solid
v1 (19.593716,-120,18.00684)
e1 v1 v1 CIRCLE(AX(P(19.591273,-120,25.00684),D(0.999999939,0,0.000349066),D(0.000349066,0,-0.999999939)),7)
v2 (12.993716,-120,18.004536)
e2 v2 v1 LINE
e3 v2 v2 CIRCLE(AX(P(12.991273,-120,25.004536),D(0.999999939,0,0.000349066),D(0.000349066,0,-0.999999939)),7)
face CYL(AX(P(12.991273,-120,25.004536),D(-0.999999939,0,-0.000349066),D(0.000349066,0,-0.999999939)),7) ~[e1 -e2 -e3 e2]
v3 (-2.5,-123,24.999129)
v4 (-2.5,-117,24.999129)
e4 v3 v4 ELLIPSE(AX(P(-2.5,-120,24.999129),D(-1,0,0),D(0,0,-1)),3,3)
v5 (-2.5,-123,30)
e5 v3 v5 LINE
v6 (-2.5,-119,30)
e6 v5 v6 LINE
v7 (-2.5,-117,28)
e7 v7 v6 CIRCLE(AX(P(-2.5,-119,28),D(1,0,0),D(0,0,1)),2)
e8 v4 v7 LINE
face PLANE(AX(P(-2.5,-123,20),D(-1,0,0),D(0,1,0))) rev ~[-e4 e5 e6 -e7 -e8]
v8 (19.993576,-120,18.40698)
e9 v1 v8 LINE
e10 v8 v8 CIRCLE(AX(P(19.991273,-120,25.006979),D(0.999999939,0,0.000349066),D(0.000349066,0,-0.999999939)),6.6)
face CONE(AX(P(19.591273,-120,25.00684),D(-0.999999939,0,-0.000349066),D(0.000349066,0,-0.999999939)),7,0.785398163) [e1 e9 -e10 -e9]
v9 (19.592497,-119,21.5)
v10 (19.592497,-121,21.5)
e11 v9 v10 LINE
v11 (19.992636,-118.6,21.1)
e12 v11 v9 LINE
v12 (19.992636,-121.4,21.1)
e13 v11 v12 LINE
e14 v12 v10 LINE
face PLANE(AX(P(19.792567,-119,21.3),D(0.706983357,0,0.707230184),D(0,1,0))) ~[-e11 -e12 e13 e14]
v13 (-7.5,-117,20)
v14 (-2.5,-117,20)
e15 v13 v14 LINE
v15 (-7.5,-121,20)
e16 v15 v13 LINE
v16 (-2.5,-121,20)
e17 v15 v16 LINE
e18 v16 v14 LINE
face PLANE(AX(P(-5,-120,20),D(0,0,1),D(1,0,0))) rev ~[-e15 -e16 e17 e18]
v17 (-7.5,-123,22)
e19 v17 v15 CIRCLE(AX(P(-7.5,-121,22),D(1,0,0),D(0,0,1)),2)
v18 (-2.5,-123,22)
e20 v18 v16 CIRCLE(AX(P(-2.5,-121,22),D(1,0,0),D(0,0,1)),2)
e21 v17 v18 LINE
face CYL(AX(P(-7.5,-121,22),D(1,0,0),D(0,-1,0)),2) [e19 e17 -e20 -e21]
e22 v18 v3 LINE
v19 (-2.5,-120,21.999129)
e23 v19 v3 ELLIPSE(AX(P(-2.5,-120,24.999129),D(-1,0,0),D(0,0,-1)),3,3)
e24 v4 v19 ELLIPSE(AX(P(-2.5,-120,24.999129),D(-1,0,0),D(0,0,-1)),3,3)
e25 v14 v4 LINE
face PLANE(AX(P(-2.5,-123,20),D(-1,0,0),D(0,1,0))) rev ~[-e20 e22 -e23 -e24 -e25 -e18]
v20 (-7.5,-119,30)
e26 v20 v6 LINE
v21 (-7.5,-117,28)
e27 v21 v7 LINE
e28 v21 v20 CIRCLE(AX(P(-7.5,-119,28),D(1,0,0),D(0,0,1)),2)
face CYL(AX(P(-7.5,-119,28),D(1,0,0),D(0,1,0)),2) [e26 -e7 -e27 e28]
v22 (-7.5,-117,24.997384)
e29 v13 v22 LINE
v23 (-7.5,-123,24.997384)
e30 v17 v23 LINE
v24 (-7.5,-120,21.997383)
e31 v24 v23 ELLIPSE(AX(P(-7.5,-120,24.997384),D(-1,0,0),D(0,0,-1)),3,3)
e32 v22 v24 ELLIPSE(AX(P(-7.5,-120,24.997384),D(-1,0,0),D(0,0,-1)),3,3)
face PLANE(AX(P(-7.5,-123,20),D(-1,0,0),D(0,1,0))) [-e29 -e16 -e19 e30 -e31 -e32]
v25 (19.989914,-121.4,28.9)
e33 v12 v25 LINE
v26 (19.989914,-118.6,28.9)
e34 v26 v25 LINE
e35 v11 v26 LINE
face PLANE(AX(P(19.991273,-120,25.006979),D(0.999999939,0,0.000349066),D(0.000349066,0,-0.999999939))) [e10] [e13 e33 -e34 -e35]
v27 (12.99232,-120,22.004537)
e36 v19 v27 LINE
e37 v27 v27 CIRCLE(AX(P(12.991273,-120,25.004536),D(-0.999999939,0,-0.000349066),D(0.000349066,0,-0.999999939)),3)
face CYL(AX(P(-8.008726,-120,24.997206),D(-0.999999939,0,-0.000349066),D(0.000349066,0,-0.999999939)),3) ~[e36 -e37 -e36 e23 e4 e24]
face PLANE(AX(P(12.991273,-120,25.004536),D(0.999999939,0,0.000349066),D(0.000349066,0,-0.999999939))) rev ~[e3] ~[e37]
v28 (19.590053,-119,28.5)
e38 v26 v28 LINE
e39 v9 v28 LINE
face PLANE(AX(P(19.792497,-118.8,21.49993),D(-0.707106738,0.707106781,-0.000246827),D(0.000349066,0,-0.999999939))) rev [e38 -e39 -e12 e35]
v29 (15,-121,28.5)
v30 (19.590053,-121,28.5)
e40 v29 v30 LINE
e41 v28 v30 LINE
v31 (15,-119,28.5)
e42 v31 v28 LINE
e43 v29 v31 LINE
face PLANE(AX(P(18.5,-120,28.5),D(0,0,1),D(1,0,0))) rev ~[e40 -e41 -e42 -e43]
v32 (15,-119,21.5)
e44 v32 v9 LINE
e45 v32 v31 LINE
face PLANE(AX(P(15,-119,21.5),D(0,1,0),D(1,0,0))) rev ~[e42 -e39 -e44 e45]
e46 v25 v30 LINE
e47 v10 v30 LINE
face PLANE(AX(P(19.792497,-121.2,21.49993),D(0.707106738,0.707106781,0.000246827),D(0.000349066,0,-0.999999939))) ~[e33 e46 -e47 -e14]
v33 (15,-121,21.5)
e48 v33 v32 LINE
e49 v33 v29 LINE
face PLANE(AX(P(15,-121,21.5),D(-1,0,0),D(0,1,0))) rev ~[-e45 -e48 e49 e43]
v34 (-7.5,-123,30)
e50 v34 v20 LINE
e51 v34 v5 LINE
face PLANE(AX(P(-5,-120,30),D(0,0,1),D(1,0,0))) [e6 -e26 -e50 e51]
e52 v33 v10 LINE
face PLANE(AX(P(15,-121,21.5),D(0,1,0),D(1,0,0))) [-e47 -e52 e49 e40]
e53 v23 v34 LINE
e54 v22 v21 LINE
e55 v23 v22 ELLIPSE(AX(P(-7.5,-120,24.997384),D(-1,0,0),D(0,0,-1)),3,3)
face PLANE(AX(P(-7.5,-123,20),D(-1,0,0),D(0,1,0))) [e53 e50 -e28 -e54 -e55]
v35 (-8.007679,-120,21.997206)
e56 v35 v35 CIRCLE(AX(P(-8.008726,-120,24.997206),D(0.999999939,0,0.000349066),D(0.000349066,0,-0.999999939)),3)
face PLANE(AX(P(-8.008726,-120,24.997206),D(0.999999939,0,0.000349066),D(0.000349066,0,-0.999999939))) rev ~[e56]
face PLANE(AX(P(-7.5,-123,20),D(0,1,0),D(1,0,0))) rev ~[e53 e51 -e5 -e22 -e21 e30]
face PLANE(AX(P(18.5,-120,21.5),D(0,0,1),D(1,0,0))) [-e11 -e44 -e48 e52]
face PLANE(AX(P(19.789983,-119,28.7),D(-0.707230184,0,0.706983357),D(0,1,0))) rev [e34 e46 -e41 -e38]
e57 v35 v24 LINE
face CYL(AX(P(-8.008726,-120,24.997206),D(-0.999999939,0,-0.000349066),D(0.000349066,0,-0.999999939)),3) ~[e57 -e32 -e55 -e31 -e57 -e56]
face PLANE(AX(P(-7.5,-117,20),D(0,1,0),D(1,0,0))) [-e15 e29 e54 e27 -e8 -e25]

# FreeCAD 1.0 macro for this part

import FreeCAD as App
import Part
import Sketcher

V = App.Vector
Q = App.Units.Quantity


def edges_at(feature, points):
    """Names of the edges that pass closest to the given points."""
    edges = feature.Shape.Edges
    near = lambda p: min(range(len(edges)), key=lambda i: edges[i].distToShape(Part.Vertex(*p))[0])
    return sorted({f"Edge{near(p) + 1}" for p in points})


def add_polygon(sketch, points):
    """Adds a closed chain of lines whose ends are joined by coincident constraints."""
    first, n = sketch.GeometryCount, len(points)
    for a, b in zip(points, points[1:] + points[:1]):
        sketch.addGeometry(Part.LineSegment(App.Vector(*a, 0), App.Vector(*b, 0)), False)
    for i in range(n):
        sketch.addConstraint(Sketcher.Constraint("Coincident", first + i, 2, first + (i + 1) % n, 1))

doc = App.newDocument("Part")
params = doc.addObject("Spreadsheet::Sheet", "Params")
for row, (alias, value) in enumerate([
    ("sketch1_width", "7 mm"),
    ("sketch1_height", "2 mm"),
    ("pad1_length", "7 mm"),
    ("sketch2_width", "5 mm"),
    ("sketch2_height", "6 mm"),
    ("pad2_length", "10 mm"),
    ("fillet_radius", "2 mm"),
    ("sketch3_diameter", "6 mm"),
    ("pad3_length", "27 mm"),
    ("sketch4_diameter", "14 mm"),
    ("pad4_length", "7 mm"),
    ("chamfer_size", "0.4 mm"),
], start=1):
    params.set(f"A{row}", alias)
    params.set(f"B{row}", "=" + value)
    params.setAlias(f"B{row}", alias)

body = doc.addObject("PartDesign::Body", "Body")

sketch1 = body.newObject("Sketcher::SketchObject", "Sketch")
sketch1.AttachmentSupport = (doc.getObject("XY_Plane"), [""])
sketch1.MapMode = "FlatFace"
sketch1.AttachmentOffset = App.Placement(V(0, 0, 21.5), App.Rotation())
add_polygon(sketch1, [(15, -119), (15, -121), (22, -121), (22, -119)])
sketch1.addConstraint(Sketcher.Constraint("Vertical", 0))
sketch1.addConstraint(Sketcher.Constraint("Horizontal", 1))
sketch1.addConstraint(Sketcher.Constraint("Vertical", 2))
sketch1.addConstraint(Sketcher.Constraint("Horizontal", 3))
sketch1.addConstraint(Sketcher.Constraint("DistanceX", 1, 1, 1, 2, Q("7 mm")))
sketch1.addConstraint(Sketcher.Constraint("DistanceY", 0, 2, 0, 1, Q("2 mm")))
sketch1.addConstraint(Sketcher.Constraint("DistanceX", -1, 1, 0, 2, Q("15 mm")))
sketch1.addConstraint(Sketcher.Constraint("DistanceY", 0, 2, -1, 1, Q("121 mm")))
sketch1.setExpression("Constraints[8]", "Params.sketch1_width")
sketch1.setExpression("Constraints[9]", "Params.sketch1_height")
pad1 = body.newObject("PartDesign::Pad", "Pad")
pad1.Profile = sketch1
pad1.setExpression("Length", "Params.pad1_length")
body2 = doc.addObject("PartDesign::Body", "Body001")

sketch2 = body2.newObject("Sketcher::SketchObject", "Sketch001")
sketch2.AttachmentSupport = (doc.getObject("XY_Plane001"), [""])
sketch2.MapMode = "FlatFace"
sketch2.AttachmentOffset = App.Placement(V(0, 0, 20), App.Rotation())
add_polygon(sketch2, [(-7.5, -117), (-7.5, -123), (-2.5, -123), (-2.5, -117)])
sketch2.addConstraint(Sketcher.Constraint("Vertical", 0))
sketch2.addConstraint(Sketcher.Constraint("Horizontal", 1))
sketch2.addConstraint(Sketcher.Constraint("Vertical", 2))
sketch2.addConstraint(Sketcher.Constraint("Horizontal", 3))
sketch2.addConstraint(Sketcher.Constraint("DistanceX", 1, 1, 1, 2, Q("5 mm")))
sketch2.addConstraint(Sketcher.Constraint("DistanceY", 0, 2, 0, 1, Q("6 mm")))
sketch2.addConstraint(Sketcher.Constraint("DistanceY", 0, 2, -1, 1, Q("123 mm")))
sketch2.addConstraint(Sketcher.Constraint("DistanceX", 0, 2, -1, 1, Q("7.5 mm")))
sketch2.setExpression("Constraints[8]", "Params.sketch2_width")
sketch2.setExpression("Constraints[9]", "Params.sketch2_height")
pad2 = body2.newObject("PartDesign::Pad", "Pad001")
pad2.Profile = sketch2
pad2.setExpression("Length", "Params.pad2_length")
doc.recompute()

fillet = body2.newObject("PartDesign::Fillet", "Fillet")
fillet.Base = (pad2, edges_at(pad2, [(-5, -123, 20), (-5, -117, 30)]))
fillet.setExpression("Radius", "Params.fillet_radius")
body3 = doc.addObject("PartDesign::Body", "Body002")

sketch3 = body3.newObject("Sketcher::SketchObject", "Sketch002")
sketch3.AttachmentSupport = (doc.getObject("XY_Plane002"), [""])
sketch3.MapMode = "FlatFace"
sketch3.addGeometry(Part.Circle(V(0, 0, 0), V(0, 0, 1), 3), False)
sketch3.addConstraint(Sketcher.Constraint("Coincident", 0, 3, -1, 1))
sketch3.addConstraint(Sketcher.Constraint("Diameter", 0, Q("6 mm")))
sketch3.setExpression("Constraints[1]", "Params.sketch3_diameter")
pad3 = body3.newObject("PartDesign::Pad", "Pad002")
pad3.Profile = sketch3
pad3.setExpression("Length", "Params.pad3_length")
body4 = doc.addObject("PartDesign::Body", "Body003")
doc.recompute()

body3.Placement = App.Placement(V(-8.008726, -120, 24.997206), App.Rotation(V(0, 1, 0), 89.98))
boolean = body4.newObject("PartDesign::Boolean", "Boolean")
boolean.Type = "Fuse"
boolean.addObjects([body3])
body5 = doc.addObject("PartDesign::Body", "Body004")

sketch4 = body5.newObject("Sketcher::SketchObject", "Sketch003")
sketch4.AttachmentSupport = (doc.getObject("XY_Plane004"), [""])
sketch4.MapMode = "FlatFace"
sketch4.addGeometry(Part.Circle(V(0, 0, 0), V(0, 0, 1), 7), False)
sketch4.addConstraint(Sketcher.Constraint("Coincident", 0, 3, -1, 1))
sketch4.addConstraint(Sketcher.Constraint("Diameter", 0, Q("14 mm")))
sketch4.setExpression("Constraints[1]", "Params.sketch4_diameter")
pad4 = body5.newObject("PartDesign::Pad", "Pad003")
pad4.Profile = sketch4
pad4.setExpression("Length", "Params.pad4_length")
body6 = doc.addObject("PartDesign::Body", "Body005")
body6.AllowCompound = True
doc.recompute()

body5.Placement = App.Placement(V(12.991273, -120, 25.004536), App.Rotation(V(0, 1, 0), 89.98))
boolean2 = body6.newObject("PartDesign::Boolean", "Boolean001")
boolean2.Type = "Fuse"
boolean2.addObjects([body5])
doc.recompute()

boolean3 = body6.newObject("PartDesign::Boolean", "Boolean002")
boolean3.Type = "Fuse"
boolean3.addObjects([body2])
doc.recompute()

boolean4 = body6.newObject("PartDesign::Boolean", "Boolean003")
boolean4.Type = "Fuse"
boolean4.addObjects([body4])
doc.recompute()

boolean5 = body6.newObject("PartDesign::Boolean", "Boolean004")
boolean5.Type = "Cut"
boolean5.addObjects([body])
doc.recompute()

chamfer = body6.newObject("PartDesign::Chamfer", "Chamfer")
chamfer.Base = (boolean5, edges_at(boolean5, [
    (19.989, -120, 32.007),
    (19.992, -120, 21.5),
    (19.991, -119, 25),
    (19.99, -120, 28.5),
    (19.991, -121, 25),
]))
chamfer.setExpression("Size", "Params.chamfer_size")

doc.recompute()
